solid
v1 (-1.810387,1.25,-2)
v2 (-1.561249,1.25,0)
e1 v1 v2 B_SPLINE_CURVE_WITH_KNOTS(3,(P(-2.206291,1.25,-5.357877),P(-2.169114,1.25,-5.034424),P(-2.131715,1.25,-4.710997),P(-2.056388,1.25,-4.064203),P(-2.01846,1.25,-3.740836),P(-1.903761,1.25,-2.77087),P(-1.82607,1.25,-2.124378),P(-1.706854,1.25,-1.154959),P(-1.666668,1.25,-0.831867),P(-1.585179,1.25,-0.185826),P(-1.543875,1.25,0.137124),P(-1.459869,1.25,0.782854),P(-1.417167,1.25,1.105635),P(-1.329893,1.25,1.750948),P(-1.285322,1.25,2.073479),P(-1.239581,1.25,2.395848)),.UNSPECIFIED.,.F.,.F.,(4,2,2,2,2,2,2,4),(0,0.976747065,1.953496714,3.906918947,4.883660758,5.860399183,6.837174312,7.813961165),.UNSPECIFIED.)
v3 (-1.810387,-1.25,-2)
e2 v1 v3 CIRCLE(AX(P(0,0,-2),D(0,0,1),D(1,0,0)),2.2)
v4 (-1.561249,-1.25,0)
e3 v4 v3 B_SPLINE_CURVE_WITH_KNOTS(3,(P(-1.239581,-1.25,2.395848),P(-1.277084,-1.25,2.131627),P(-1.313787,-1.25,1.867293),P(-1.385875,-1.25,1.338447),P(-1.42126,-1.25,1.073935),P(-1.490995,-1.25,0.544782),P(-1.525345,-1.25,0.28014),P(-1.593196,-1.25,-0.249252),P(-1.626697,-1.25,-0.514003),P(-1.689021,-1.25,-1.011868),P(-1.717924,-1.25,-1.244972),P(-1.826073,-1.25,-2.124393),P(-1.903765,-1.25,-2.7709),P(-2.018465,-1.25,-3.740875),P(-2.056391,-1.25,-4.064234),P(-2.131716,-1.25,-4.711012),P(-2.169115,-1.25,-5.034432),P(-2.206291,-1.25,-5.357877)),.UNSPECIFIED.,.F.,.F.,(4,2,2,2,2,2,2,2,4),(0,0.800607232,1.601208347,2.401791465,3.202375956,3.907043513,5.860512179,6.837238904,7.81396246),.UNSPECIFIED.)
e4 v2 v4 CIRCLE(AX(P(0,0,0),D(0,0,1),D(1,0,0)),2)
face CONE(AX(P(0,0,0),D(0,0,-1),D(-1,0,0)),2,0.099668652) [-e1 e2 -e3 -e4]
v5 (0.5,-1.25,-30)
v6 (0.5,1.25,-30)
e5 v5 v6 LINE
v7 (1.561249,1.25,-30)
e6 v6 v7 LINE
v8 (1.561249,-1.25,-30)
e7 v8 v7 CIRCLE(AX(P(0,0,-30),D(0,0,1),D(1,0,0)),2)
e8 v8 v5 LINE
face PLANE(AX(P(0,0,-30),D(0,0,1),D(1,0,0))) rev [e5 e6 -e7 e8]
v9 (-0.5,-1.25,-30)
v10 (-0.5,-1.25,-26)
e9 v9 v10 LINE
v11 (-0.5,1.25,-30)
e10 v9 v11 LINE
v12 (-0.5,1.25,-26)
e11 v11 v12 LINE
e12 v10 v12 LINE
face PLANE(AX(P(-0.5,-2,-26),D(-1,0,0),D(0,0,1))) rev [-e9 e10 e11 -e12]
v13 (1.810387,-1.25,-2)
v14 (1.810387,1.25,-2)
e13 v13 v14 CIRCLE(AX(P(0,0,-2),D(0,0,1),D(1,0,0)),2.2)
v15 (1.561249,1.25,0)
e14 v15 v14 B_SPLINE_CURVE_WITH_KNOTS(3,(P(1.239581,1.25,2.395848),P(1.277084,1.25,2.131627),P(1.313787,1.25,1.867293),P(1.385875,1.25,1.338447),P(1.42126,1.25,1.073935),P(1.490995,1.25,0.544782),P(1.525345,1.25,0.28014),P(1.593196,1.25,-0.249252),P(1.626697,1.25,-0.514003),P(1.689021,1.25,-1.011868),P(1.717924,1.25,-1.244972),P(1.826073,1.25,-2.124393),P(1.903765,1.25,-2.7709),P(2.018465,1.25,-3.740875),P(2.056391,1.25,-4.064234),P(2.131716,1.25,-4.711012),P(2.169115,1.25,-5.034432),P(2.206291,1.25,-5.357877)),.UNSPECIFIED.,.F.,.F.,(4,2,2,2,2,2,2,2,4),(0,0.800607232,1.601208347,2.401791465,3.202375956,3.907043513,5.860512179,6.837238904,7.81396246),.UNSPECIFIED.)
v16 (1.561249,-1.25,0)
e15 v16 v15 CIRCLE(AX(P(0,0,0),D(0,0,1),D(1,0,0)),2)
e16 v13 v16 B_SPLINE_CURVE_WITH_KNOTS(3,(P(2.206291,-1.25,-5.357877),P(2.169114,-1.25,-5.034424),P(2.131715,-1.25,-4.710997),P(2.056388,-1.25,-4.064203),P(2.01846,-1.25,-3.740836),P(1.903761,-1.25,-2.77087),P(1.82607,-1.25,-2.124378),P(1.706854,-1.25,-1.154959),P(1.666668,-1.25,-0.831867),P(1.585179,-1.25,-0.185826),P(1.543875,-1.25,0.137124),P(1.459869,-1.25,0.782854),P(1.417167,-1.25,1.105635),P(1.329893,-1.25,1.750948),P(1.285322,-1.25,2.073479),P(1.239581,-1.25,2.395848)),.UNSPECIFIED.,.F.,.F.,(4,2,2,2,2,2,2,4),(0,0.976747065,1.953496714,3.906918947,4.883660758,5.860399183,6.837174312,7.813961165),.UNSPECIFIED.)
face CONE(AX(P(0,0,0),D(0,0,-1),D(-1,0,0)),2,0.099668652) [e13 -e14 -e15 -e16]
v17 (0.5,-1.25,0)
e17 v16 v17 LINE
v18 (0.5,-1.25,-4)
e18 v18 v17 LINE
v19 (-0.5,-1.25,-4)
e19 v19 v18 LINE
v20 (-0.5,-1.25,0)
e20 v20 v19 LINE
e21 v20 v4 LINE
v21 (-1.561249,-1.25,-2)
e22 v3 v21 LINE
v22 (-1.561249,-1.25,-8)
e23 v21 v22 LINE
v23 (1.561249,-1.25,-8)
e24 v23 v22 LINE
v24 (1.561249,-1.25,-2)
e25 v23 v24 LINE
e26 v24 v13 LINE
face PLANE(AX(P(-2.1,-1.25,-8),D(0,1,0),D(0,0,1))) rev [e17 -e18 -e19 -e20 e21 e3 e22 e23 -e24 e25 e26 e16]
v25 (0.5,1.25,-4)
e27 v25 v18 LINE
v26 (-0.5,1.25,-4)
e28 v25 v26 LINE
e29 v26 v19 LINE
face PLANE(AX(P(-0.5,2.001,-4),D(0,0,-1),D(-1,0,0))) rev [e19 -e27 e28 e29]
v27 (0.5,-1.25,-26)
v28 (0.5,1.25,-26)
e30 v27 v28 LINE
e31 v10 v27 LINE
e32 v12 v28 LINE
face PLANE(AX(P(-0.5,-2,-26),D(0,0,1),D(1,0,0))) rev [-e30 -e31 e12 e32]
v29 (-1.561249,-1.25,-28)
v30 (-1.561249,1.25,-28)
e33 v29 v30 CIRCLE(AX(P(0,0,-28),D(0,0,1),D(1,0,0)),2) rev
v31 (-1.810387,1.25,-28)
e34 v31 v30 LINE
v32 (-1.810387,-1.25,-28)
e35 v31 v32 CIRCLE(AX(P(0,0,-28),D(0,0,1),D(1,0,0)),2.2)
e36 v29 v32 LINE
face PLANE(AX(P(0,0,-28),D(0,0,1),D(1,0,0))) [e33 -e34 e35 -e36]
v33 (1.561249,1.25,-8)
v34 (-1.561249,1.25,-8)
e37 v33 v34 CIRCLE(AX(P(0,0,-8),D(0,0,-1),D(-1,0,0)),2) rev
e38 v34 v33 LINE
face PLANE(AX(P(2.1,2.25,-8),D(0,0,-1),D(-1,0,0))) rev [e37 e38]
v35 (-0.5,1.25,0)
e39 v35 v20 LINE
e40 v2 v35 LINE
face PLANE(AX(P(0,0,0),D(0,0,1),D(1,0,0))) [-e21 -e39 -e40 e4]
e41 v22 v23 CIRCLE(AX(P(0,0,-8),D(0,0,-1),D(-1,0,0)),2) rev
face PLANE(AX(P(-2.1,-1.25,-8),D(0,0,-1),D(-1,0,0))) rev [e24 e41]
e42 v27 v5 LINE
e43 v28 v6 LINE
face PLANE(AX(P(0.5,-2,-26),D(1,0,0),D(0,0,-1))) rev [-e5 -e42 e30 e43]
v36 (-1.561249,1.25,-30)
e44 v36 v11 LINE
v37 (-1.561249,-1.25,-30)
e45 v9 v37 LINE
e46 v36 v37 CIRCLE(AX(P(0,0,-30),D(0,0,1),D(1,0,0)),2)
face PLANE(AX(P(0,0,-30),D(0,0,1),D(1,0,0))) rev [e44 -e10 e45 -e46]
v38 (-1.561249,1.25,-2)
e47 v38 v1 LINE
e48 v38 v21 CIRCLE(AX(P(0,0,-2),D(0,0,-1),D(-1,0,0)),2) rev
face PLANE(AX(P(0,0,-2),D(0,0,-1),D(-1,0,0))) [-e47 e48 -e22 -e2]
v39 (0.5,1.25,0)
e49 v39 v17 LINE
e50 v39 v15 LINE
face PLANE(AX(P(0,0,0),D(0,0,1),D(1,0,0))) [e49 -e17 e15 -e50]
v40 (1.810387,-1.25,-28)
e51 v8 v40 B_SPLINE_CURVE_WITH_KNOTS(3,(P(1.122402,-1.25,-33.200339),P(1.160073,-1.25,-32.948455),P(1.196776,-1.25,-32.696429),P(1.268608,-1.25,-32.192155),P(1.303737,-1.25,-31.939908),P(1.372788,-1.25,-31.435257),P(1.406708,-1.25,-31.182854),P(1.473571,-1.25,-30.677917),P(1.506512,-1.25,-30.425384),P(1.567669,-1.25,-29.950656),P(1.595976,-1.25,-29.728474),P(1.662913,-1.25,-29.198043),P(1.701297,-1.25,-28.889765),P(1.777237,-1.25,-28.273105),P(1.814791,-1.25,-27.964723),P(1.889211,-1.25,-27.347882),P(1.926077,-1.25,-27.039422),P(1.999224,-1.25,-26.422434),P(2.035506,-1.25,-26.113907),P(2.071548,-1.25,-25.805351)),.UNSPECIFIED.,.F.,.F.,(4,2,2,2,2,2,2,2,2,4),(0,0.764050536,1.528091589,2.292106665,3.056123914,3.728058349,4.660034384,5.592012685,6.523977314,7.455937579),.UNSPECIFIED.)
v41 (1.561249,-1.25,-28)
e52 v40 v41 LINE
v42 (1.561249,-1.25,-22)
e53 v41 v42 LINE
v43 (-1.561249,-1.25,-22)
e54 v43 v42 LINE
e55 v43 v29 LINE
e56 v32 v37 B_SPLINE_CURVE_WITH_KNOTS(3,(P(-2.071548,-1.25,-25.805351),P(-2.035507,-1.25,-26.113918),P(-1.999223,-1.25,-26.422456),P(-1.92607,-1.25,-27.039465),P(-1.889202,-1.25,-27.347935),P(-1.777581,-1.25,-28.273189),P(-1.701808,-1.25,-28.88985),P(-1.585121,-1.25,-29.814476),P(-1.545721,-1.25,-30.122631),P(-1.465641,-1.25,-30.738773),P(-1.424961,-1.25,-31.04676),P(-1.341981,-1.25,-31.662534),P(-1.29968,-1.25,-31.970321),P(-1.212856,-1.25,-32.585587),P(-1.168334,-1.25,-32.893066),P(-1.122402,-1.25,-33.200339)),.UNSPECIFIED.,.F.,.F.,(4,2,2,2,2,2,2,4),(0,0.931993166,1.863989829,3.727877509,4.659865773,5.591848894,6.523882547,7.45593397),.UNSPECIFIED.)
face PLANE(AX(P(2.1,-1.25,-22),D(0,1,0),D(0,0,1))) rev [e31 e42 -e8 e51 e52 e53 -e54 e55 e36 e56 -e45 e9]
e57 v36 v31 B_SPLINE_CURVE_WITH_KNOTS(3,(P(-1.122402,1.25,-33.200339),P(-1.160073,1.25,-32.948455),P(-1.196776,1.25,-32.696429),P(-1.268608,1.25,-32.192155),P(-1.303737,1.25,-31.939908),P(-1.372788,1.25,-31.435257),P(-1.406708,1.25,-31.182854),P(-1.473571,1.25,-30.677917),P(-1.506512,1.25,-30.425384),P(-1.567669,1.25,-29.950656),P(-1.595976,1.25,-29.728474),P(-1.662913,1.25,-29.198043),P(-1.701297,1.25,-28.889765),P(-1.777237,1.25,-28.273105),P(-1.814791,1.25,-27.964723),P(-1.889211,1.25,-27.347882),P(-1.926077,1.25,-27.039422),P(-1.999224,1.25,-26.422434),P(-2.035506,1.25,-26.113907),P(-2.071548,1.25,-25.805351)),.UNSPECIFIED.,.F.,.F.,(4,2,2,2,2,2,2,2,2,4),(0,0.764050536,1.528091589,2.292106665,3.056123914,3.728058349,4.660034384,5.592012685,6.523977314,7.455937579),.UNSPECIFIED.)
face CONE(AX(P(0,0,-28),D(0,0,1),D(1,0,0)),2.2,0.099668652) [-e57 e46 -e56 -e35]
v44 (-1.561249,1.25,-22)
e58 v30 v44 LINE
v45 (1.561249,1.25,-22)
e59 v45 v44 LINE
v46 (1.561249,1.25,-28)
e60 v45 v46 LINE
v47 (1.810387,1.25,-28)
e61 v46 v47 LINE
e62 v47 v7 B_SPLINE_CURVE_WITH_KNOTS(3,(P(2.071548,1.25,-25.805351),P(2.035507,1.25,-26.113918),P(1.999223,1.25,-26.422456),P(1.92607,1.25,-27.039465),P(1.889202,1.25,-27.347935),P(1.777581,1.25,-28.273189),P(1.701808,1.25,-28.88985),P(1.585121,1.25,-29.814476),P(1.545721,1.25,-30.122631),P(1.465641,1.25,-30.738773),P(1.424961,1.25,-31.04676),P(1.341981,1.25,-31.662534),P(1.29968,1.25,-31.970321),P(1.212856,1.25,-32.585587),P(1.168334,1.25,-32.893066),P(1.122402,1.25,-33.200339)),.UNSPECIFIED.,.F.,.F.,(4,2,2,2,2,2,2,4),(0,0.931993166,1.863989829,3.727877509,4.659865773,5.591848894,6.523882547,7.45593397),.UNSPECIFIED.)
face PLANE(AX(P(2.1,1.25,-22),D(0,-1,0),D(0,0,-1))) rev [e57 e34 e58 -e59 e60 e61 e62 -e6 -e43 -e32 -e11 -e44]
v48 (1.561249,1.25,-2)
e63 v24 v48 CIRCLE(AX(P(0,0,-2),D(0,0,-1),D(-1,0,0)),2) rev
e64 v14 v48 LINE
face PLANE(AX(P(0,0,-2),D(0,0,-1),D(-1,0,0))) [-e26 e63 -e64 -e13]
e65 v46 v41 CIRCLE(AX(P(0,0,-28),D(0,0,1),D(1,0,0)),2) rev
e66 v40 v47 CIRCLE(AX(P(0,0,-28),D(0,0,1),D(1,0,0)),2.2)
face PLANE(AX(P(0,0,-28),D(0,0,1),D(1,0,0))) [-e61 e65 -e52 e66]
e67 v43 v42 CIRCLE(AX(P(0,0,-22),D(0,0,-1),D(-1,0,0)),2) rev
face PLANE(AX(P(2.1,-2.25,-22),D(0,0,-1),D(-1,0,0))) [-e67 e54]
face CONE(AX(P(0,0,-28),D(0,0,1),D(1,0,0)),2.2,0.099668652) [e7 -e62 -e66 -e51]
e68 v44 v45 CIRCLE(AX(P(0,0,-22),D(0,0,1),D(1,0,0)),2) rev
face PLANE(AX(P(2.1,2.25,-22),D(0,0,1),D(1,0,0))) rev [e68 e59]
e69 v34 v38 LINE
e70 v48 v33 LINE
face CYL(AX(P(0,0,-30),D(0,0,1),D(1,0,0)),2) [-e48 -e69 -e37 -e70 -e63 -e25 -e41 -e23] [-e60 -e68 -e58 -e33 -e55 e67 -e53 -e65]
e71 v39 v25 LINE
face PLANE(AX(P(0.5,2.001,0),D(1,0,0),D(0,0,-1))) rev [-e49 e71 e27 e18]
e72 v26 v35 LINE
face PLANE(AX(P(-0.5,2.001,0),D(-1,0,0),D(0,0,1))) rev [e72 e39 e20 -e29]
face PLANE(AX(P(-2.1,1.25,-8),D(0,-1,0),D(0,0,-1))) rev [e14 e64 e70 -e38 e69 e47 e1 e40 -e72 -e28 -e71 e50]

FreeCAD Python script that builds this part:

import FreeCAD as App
import Part
import Sketcher

doc = App.newDocument("Part")
body = doc.addObject("PartDesign::Body", "Body")

sketch1 = body.newObject("Sketcher::SketchObject", "Sketch")
sketch1.AttachmentSupport = (doc.getObject("XY_Plane"), [""])
sketch1.MapMode = "FlatFace"
sketch1.addGeometry(Part.Circle(App.Vector(0, 0, 0), App.Vector(0, 0, 1), 2), False)
sketch1.addConstraint([
    Sketcher.Constraint("Coincident", 0, 3, -1, 1),
    Sketcher.Constraint("Diameter", 0, 4.0),
])
pad1 = body.newObject("PartDesign::Pad", "Pad")
pad1.Profile = sketch1
pad1.Length = 30
pad1.Reversed = True

sketch2 = body.newObject("Sketcher::SketchObject", "Sketch001")
sketch2.AttachmentSupport = (doc.getObject("XZ_Plane"), [""])
sketch2.MapMode = "FlatFace"
sketch2.addGeometry([
    Part.LineSegment(App.Vector(0, -2, 0), App.Vector(0, 0, 0)),
    Part.LineSegment(App.Vector(0, 0, 0), App.Vector(2, 0, 0)),
    Part.LineSegment(App.Vector(2, 0, 0), App.Vector(2.2, -2, 0)),
    Part.LineSegment(App.Vector(2.2, -2, 0), App.Vector(0, -2, 0)),
], False)
sketch2.addConstraint([
    Sketcher.Constraint("Coincident", 0, 2, 1, 1),
    Sketcher.Constraint("Coincident", 1, 2, 2, 1),
    Sketcher.Constraint("Coincident", 2, 2, 3, 1),
    Sketcher.Constraint("Coincident", 3, 2, 0, 1),
    Sketcher.Constraint("Vertical", 0),
    Sketcher.Constraint("Horizontal", 1),
    Sketcher.Constraint("Horizontal", 3),
    Sketcher.Constraint("Coincident", 0, 2, -1, 1),
    Sketcher.Constraint("Equal", 1, 0),
    Sketcher.Constraint("DistanceX", 1, 1, 1, 2, 2.0),
    Sketcher.Constraint("DistanceX", 3, 2, 3, 1, 2.2),
])
revolution = body.newObject("PartDesign::Revolution", "Revolution")
revolution.Profile = sketch2
revolution.ReferenceAxis = (sketch2, ["V_Axis"])
revolution.Angle = 360

sketch3 = body.newObject("Sketcher::SketchObject", "Sketch002")
sketch3.AttachmentSupport = (doc.getObject("XY_Plane"), [""])
sketch3.MapMode = "FlatFace"
sketch3.addGeometry([
    Part.LineSegment(App.Vector(-2.1, 2.2, 0), App.Vector(-2.1, 1.2, 0)),
    Part.LineSegment(App.Vector(-2.1, 1.2, 0), App.Vector(2.1, 1.2, 0)),
    Part.LineSegment(App.Vector(2.1, 1.2, 0), App.Vector(2.1, 2.2, 0)),
    Part.LineSegment(App.Vector(2.1, 2.2, 0), App.Vector(-2.1, 2.2, 0)),
    Part.LineSegment(App.Vector(-2.1, -1.2, 0), App.Vector(-2.1, -2.2, 0)),
    Part.LineSegment(App.Vector(-2.1, -2.2, 0), App.Vector(2.1, -2.2, 0)),
    Part.LineSegment(App.Vector(2.1, -2.2, 0), App.Vector(2.1, -1.2, 0)),
    Part.LineSegment(App.Vector(2.1, -1.2, 0), App.Vector(-2.1, -1.2, 0)),
], False)
sketch3.addConstraint([
    Sketcher.Constraint("Coincident", 0, 2, 1, 1),
    Sketcher.Constraint("Coincident", 1, 2, 2, 1),
    Sketcher.Constraint("Coincident", 2, 2, 3, 1),
    Sketcher.Constraint("Coincident", 3, 2, 0, 1),
    Sketcher.Constraint("Coincident", 4, 2, 5, 1),
    Sketcher.Constraint("Coincident", 5, 2, 6, 1),
    Sketcher.Constraint("Coincident", 6, 2, 7, 1),
    Sketcher.Constraint("Coincident", 7, 2, 4, 1),
    Sketcher.Constraint("Vertical", 0),
    Sketcher.Constraint("Horizontal", 1),
    Sketcher.Constraint("Vertical", 2),
    Sketcher.Constraint("Horizontal", 3),
    Sketcher.Constraint("Vertical", 4),
    Sketcher.Constraint("Horizontal", 5),
    Sketcher.Constraint("Vertical", 6),
    Sketcher.Constraint("Horizontal", 7),
    Sketcher.Constraint("Symmetric", 2, 2, 4, 2, -1, 1),
    Sketcher.Constraint("Symmetric", 0, 2, 6, 2, -1, 1),
    Sketcher.Constraint("Vertical", 3, 2, 4, 2),
    Sketcher.Constraint("DistanceY", 0, 2, 0, 1, 1.0),
    Sketcher.Constraint("DistanceX", 1, 1, 1, 2, 4.2),
    Sketcher.Constraint("DistanceY", 4, 2, 0, 2, 3.5),
])
pocket1 = body.newObject("PartDesign::Pocket", "Pocket")
pocket1.Profile = sketch3
pocket1.Length = 8

sketch4 = body.newObject("Sketcher::SketchObject", "Sketch003")
sketch4.AttachmentSupport = (doc.getObject("XZ_Plane"), [""])
sketch4.MapMode = "FlatFace"
sketch4.AttachmentOffset = App.Placement(App.Vector(0, 0, 1.25), App.Rotation())
sketch4.addGeometry([
    Part.LineSegment(App.Vector(-0.5, 0, 0), App.Vector(-0.5, -4, 0)),
    Part.LineSegment(App.Vector(-0.5, -4, 0), App.Vector(0.5, -4, 0)),
    Part.LineSegment(App.Vector(0.5, -4, 0), App.Vector(0.5, 0, 0)),
    Part.LineSegment(App.Vector(0.5, 0, 0), App.Vector(-0.5, 0, 0)),
], False)
sketch4.addConstraint([
    Sketcher.Constraint("Coincident", 0, 2, 1, 1),
    Sketcher.Constraint("Coincident", 1, 2, 2, 1),
    Sketcher.Constraint("Coincident", 2, 2, 3, 1),
    Sketcher.Constraint("Coincident", 3, 2, 0, 1),
    Sketcher.Constraint("Vertical", 0),
    Sketcher.Constraint("Horizontal", 1),
    Sketcher.Constraint("Vertical", 2),
    Sketcher.Constraint("Horizontal", 3),
    Sketcher.Constraint("Symmetric", 2, 2, 3, 2, -1, 1),
    Sketcher.Constraint("DistanceX", 1, 1, 1, 2, 1.0),
    Sketcher.Constraint("DistanceY", 0, 2, 0, 1, 4.0),
])
pocket2 = body.newObject("PartDesign::Pocket", "Pocket001")
pocket2.Profile = sketch4
pocket2.Type = "UpToFirst"

sketch5 = body.newObject("Sketcher::SketchObject", "Sketch004")
sketch5.AttachmentSupport = (doc.getObject("XZ_Plane"), [""])
sketch5.MapMode = "FlatFace"
sketch5.addGeometry([
    Part.LineSegment(App.Vector(0, -30, 0), App.Vector(0, -28, 0)),
    Part.LineSegment(App.Vector(0, -28, 0), App.Vector(2.2, -28, 0)),
    Part.LineSegment(App.Vector(2.2, -28, 0), App.Vector(2, -30, 0)),
    Part.LineSegment(App.Vector(2, -30, 0), App.Vector(0, -30, 0)),
], False)
sketch5.addConstraint([
    Sketcher.Constraint("Coincident", 0, 2, 1, 1),
    Sketcher.Constraint("Coincident", 1, 2, 2, 1),
    Sketcher.Constraint("Coincident", 2, 2, 3, 1),
    Sketcher.Constraint("Coincident", 3, 2, 0, 1),
    Sketcher.Constraint("Vertical", 0),
    Sketcher.Constraint("Horizontal", 1),
    Sketcher.Constraint("Horizontal", 3),
    Sketcher.Constraint("PointOnObject", 0, 2, -2),
    Sketcher.Constraint("Equal", 3, 0),
    Sketcher.Constraint("DistanceX", 3, 2, 3, 1, 2.0),
    Sketcher.Constraint("DistanceX", 1, 1, 1, 2, 2.2),
    Sketcher.Constraint("DistanceY", 0, 2, -1, 1, 28.0),
])
revolution2 = body.newObject("PartDesign::Revolution", "Revolution001")
revolution2.Profile = sketch5
revolution2.ReferenceAxis = (sketch5, ["V_Axis"])
revolution2.Angle = 360

sketch6 = body.newObject("Sketcher::SketchObject", "Sketch005")
sketch6.AttachmentSupport = (doc.getObject("XY_Plane"), [""])
sketch6.MapMode = "FlatFace"
sketch6.AttachmentOffset = App.Placement(App.Vector(0, 0, -30), App.Rotation())
sketch6.addGeometry([
    Part.LineSegment(App.Vector(2.1, 2.2, 0), App.Vector(2.1, 1.2, 0)),
    Part.LineSegment(App.Vector(2.1, 1.2, 0), App.Vector(-2.1, 1.2, 0)),
    Part.LineSegment(App.Vector(-2.1, 1.2, 0), App.Vector(-2.1, 2.2, 0)),
    Part.LineSegment(App.Vector(-2.1, 2.2, 0), App.Vector(2.1, 2.2, 0)),
    Part.LineSegment(App.Vector(2.1, -1.2, 0), App.Vector(2.1, -2.2, 0)),
    Part.LineSegment(App.Vector(2.1, -2.2, 0), App.Vector(-2.1, -2.2, 0)),
    Part.LineSegment(App.Vector(-2.1, -2.2, 0), App.Vector(-2.1, -1.2, 0)),
    Part.LineSegment(App.Vector(-2.1, -1.2, 0), App.Vector(2.1, -1.2, 0)),
], False)
sketch6.addConstraint([
    Sketcher.Constraint("Coincident", 0, 2, 1, 1),
    Sketcher.Constraint("Coincident", 1, 2, 2, 1),
    Sketcher.Constraint("Coincident", 2, 2, 3, 1),
    Sketcher.Constraint("Coincident", 3, 2, 0, 1),
    Sketcher.Constraint("Coincident", 4, 2, 5, 1),
    Sketcher.Constraint("Coincident", 5, 2, 6, 1),
    Sketcher.Constraint("Coincident", 6, 2, 7, 1),
    Sketcher.Constraint("Coincident", 7, 2, 4, 1),
    Sketcher.Constraint("Vertical", 0),
    Sketcher.Constraint("Horizontal", 1),
    Sketcher.Constraint("Vertical", 2),
    Sketcher.Constraint("Horizontal", 3),
    Sketcher.Constraint("Vertical", 4),
    Sketcher.Constraint("Horizontal", 5),
    Sketcher.Constraint("Vertical", 6),
    Sketcher.Constraint("Horizontal", 7),
    Sketcher.Constraint("Symmetric", 2, 2, 4, 2, -1, 1),
    Sketcher.Constraint("Symmetric", 0, 2, 6, 2, -1, 1),
    Sketcher.Constraint("Vertical", 3, 2, 4, 2),
    Sketcher.Constraint("DistanceY", 0, 2, 0, 1, 1.0),
    Sketcher.Constraint("DistanceX", 1, 2, 1, 1, 4.2),
    Sketcher.Constraint("DistanceY", 4, 2, 0, 2, 3.5),
])
pocket3 = body.newObject("PartDesign::Pocket", "Pocket002")
pocket3.Profile = sketch6
pocket3.Length = 8
pocket3.Reversed = True

sketch7 = body.newObject("Sketcher::SketchObject", "Sketch006")
sketch7.AttachmentSupport = (doc.getObject("XZ_Plane"), [""])
sketch7.MapMode = "FlatFace"
sketch7.AttachmentOffset = App.Placement(App.Vector(0, 0, -1.25), App.Rotation())
sketch7.addGeometry([
    Part.LineSegment(App.Vector(-0.5, -30, 0), App.Vector(-0.5, -26, 0)),
    Part.LineSegment(App.Vector(-0.5, -26, 0), App.Vector(0.5, -26, 0)),
    Part.LineSegment(App.Vector(0.5, -26, 0), App.Vector(0.5, -30, 0)),
    Part.LineSegment(App.Vector(0.5, -30, 0), App.Vector(-0.5, -30, 0)),
], False)
sketch7.addConstraint([
    Sketcher.Constraint("Coincident", 0, 2, 1, 1),
    Sketcher.Constraint("Coincident", 1, 2, 2, 1),
    Sketcher.Constraint("Coincident", 2, 2, 3, 1),
    Sketcher.Constraint("Coincident", 3, 2, 0, 1),
    Sketcher.Constraint("Vertical", 0),
    Sketcher.Constraint("Horizontal", 1),
    Sketcher.Constraint("Vertical", 2),
    Sketcher.Constraint("Horizontal", 3),
    Sketcher.Constraint("DistanceX", 1, 1, 1, 2, 1.0),
    Sketcher.Constraint("DistanceY", 0, 1, 0, 2, 4.0),
    Sketcher.Constraint("DistanceY", 0, 2, -1, 1, 26.0),
    Sketcher.Constraint("DistanceX", 0, 2, -1, 1, 0.5),
])
pocket4 = body.newObject("PartDesign::Pocket", "Pocket003")
pocket4.Profile = sketch7
pocket4.Type = "ThroughAll"
pocket4.Reversed = True

doc.recompute()
